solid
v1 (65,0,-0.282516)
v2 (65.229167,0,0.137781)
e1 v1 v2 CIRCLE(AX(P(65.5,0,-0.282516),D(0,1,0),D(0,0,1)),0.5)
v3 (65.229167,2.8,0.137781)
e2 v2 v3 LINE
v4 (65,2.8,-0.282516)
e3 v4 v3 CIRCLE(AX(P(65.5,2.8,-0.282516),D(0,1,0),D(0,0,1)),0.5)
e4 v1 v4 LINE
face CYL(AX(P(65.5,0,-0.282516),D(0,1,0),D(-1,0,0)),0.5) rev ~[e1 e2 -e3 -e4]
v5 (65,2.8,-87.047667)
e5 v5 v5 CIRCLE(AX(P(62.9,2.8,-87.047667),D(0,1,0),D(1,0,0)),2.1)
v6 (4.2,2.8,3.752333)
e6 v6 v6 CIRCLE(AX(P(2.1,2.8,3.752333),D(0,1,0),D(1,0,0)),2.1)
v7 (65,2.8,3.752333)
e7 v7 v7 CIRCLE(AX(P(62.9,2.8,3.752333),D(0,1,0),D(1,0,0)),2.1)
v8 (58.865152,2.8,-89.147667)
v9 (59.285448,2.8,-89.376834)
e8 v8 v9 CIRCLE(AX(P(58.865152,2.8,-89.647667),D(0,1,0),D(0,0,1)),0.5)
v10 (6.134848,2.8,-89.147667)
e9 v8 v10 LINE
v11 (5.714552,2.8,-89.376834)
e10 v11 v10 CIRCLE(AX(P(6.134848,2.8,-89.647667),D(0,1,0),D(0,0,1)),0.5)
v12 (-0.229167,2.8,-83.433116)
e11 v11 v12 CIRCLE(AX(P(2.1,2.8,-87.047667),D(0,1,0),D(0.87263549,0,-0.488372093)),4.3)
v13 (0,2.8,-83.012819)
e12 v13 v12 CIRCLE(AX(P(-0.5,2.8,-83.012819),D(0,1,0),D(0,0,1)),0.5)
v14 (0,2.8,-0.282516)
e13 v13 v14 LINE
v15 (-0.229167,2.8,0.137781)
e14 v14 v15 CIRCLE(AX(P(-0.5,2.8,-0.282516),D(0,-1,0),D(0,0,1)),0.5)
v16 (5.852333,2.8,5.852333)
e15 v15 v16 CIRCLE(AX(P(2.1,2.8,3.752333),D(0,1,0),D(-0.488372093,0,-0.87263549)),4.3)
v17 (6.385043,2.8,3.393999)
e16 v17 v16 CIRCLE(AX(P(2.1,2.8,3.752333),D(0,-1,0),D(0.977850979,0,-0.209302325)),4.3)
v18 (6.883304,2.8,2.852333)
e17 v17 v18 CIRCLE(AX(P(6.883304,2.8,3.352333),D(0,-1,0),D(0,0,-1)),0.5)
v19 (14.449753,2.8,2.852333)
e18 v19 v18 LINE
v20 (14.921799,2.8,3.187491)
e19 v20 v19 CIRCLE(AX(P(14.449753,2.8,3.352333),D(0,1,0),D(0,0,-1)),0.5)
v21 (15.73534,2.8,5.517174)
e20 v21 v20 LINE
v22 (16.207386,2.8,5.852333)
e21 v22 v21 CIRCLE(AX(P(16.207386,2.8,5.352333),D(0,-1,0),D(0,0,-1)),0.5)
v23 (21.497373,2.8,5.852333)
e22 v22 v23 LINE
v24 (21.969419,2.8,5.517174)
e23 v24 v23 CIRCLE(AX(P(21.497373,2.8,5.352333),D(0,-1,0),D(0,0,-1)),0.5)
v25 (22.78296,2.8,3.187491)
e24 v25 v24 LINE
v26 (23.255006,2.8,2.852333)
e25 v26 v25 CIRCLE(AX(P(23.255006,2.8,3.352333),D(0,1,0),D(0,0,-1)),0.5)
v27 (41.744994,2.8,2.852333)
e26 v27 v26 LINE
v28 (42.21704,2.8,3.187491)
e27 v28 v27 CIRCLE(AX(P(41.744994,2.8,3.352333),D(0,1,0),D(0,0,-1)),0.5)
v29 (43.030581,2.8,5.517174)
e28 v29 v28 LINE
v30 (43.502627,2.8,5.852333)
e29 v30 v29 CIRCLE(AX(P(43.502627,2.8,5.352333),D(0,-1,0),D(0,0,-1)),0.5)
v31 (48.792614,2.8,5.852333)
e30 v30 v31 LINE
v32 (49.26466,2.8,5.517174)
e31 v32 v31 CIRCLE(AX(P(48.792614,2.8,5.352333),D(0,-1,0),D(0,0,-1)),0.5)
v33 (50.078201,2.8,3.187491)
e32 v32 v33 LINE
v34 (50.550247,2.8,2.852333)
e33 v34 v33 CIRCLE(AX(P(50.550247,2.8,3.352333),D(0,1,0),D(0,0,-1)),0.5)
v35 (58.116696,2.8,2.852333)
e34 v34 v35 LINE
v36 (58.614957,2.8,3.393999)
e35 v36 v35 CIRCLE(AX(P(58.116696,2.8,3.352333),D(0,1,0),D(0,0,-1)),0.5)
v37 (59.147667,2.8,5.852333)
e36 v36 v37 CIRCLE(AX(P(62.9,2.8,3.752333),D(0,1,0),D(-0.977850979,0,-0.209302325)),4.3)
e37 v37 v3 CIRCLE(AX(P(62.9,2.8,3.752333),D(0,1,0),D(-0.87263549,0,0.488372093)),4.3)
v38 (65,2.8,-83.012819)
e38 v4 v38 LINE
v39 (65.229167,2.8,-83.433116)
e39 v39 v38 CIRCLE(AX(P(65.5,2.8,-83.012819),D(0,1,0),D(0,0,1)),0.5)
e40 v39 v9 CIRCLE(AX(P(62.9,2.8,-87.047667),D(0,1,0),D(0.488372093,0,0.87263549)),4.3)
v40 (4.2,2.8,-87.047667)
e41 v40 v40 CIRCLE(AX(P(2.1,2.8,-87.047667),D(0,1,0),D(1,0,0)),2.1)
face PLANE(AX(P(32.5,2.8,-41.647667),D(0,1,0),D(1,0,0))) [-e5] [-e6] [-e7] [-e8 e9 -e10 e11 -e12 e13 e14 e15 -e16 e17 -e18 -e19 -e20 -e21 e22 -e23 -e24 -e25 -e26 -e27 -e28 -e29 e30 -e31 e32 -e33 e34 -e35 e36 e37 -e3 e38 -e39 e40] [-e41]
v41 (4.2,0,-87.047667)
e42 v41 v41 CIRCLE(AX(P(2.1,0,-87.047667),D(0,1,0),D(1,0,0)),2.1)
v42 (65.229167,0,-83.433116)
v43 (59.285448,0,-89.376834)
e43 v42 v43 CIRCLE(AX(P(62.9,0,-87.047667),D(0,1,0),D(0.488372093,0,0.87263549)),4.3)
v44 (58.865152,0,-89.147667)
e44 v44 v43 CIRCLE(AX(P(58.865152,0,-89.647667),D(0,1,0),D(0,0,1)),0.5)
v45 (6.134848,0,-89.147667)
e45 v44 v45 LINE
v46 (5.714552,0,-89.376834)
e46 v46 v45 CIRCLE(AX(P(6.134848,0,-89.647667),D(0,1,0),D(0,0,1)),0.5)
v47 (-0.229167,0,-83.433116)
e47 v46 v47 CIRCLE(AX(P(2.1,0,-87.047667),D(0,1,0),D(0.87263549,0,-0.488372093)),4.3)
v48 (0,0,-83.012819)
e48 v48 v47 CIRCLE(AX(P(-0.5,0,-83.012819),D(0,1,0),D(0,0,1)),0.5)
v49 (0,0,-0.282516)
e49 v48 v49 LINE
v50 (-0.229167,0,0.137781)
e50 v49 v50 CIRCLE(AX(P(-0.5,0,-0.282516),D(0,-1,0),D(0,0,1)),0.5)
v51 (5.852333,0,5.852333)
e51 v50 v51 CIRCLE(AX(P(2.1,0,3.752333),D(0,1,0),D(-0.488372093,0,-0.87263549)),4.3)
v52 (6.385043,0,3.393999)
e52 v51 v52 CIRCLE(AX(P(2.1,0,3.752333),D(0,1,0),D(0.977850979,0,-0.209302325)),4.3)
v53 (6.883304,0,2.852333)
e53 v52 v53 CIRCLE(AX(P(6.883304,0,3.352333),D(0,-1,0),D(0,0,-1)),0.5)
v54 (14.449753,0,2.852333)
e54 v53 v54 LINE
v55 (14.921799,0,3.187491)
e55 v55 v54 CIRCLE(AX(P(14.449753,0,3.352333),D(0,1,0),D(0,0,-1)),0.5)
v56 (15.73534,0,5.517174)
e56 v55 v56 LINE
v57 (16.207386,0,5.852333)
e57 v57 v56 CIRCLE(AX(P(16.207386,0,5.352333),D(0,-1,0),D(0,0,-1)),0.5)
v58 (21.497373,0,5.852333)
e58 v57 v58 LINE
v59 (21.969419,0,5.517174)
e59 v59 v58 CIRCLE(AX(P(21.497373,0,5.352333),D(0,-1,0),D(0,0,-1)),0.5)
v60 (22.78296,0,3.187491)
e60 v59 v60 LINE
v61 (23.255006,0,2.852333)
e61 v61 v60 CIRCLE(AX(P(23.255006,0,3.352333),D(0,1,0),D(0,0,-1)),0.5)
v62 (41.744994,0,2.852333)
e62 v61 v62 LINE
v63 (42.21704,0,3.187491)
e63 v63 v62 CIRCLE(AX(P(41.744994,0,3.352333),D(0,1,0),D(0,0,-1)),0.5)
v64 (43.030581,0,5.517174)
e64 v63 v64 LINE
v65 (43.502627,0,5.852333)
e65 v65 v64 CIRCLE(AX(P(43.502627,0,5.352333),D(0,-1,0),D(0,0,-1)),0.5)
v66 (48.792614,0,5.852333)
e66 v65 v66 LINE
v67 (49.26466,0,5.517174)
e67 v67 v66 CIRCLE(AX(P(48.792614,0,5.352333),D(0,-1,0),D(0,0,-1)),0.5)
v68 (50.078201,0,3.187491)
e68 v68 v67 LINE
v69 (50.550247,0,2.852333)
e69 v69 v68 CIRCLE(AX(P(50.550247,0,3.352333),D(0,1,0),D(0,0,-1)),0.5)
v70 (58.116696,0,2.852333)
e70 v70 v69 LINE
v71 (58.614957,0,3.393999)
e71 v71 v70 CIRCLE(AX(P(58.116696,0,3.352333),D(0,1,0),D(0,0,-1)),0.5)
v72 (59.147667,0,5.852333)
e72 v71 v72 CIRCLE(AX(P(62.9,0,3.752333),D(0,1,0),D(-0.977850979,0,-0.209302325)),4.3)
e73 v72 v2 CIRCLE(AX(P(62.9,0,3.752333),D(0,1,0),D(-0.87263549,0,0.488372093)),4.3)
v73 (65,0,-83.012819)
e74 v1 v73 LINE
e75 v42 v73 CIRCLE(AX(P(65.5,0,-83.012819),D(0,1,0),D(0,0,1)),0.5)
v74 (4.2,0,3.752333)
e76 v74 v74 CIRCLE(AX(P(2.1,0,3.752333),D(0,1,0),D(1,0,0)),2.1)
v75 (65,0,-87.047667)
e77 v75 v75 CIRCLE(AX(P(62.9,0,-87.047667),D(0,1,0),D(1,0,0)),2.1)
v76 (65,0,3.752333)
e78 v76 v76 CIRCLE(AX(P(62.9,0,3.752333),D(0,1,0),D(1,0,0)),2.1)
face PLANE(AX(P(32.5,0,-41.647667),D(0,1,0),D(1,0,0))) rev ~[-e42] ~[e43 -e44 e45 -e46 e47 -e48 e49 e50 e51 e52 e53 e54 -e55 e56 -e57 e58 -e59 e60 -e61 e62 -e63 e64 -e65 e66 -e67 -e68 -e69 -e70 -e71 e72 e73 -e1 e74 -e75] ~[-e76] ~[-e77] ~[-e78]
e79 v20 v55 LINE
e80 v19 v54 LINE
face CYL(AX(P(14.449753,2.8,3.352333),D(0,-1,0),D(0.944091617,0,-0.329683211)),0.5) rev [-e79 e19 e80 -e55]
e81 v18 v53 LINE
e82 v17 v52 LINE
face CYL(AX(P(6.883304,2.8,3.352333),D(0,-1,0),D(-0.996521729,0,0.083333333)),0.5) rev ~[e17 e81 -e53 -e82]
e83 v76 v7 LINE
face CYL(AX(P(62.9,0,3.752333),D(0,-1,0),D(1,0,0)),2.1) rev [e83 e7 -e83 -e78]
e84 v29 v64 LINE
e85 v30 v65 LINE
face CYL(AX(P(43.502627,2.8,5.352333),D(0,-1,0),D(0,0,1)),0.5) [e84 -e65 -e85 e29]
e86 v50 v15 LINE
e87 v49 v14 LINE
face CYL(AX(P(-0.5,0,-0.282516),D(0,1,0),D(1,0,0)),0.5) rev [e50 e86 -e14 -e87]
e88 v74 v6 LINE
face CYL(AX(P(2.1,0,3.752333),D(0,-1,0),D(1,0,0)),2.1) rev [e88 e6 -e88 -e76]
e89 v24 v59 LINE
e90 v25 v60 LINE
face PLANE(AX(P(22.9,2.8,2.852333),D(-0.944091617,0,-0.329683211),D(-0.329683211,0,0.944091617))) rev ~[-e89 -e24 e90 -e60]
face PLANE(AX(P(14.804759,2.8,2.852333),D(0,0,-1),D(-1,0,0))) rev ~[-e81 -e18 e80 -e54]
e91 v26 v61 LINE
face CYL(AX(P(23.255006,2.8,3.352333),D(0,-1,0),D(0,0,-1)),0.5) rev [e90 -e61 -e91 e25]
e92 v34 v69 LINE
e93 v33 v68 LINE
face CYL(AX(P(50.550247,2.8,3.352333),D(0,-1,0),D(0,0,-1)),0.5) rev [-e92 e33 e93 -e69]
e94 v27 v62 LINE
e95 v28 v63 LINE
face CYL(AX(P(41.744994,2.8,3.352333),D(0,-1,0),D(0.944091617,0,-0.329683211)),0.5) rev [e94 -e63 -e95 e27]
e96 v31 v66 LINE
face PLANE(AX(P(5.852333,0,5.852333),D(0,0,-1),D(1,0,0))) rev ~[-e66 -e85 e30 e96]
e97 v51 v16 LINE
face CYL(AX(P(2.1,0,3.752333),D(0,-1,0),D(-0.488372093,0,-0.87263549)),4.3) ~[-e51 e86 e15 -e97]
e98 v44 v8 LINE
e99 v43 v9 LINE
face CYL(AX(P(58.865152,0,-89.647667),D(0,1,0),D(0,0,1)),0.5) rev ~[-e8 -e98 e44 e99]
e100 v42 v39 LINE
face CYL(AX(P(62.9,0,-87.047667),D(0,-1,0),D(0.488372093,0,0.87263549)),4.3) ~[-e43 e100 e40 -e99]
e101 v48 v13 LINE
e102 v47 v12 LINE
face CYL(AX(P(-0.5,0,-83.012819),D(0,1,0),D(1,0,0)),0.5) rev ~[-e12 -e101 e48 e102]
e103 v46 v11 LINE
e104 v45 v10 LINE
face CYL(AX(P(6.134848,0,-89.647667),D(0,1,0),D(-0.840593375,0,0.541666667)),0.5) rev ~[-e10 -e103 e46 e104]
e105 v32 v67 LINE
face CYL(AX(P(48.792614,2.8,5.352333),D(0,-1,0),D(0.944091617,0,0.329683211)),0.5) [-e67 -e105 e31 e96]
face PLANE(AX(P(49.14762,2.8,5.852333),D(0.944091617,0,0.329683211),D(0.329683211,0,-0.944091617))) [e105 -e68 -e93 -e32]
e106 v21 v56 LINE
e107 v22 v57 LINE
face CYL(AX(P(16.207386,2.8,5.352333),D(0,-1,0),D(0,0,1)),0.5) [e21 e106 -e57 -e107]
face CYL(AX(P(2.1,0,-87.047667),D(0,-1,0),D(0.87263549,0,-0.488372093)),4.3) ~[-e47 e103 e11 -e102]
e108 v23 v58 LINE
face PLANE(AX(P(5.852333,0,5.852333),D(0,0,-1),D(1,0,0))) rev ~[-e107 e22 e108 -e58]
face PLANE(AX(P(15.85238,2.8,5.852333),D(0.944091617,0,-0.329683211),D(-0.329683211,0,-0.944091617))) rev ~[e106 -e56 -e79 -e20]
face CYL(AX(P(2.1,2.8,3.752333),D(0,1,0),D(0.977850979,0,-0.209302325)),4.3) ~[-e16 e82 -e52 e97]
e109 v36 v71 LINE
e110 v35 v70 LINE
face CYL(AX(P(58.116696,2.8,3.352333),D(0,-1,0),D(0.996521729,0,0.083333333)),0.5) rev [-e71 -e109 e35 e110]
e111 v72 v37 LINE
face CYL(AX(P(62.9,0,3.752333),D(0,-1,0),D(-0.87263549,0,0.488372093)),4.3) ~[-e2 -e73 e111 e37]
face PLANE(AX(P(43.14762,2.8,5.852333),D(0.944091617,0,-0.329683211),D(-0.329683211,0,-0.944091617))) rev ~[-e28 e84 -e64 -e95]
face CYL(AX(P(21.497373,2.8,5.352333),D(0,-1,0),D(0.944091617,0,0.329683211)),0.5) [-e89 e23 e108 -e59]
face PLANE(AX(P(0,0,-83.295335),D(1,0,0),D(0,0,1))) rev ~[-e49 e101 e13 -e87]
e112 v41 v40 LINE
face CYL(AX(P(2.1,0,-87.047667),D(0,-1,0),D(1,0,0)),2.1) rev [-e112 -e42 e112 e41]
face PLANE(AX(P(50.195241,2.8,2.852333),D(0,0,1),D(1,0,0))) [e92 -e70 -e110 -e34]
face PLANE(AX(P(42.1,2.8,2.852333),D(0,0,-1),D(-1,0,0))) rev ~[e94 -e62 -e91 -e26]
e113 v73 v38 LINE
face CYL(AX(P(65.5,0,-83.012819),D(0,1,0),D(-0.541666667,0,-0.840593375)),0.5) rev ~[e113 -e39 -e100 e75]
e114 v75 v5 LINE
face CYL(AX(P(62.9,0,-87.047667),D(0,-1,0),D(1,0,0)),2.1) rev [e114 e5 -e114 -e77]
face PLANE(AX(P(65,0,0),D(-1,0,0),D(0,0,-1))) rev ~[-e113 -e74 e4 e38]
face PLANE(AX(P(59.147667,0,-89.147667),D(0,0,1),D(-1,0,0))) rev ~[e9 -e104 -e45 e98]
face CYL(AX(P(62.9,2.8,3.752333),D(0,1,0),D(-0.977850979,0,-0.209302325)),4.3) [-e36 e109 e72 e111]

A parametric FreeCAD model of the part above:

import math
import FreeCAD as App
import Part
import Sketcher
Q = App.Units.Quantity


def edges_at(feature, points):
    """Names of the edges that pass closest to the given points."""
    edges = feature.Shape.Edges
    near = lambda p: min(range(len(edges)), key=lambda i: edges[i].distToShape(Part.Vertex(*p))[0])
    return sorted({f"Edge{near(p) + 1}" for p in points})


def add_polygon(sketch, points):
    """Adds a closed chain of lines whose ends are joined by coincident constraints."""
    first, n = sketch.GeometryCount, len(points)
    for a, b in zip(points, points[1:] + points[:1]):
        sketch.addGeometry(Part.LineSegment(App.Vector(*a, 0), App.Vector(*b, 0)), False)
    for i in range(n):
        sketch.addConstraint(Sketcher.Constraint("Coincident", first + i, 2, first + (i + 1) % n, 1))

doc = App.newDocument("Part")
body = doc.addObject("PartDesign::Body", "Body")

# Sketch on XZ plane
sketch1 = doc.addObject("Sketcher::SketchObject", "Sketch")
body.addObject(sketch1)
sketch1.AttachmentSupport = (doc.XZ_Plane, [""])
sketch1.MapMode = "FlatFace"
sketch1.addGeometry([
    Part.LineSegment(App.Vector(0, -83.295335, 0), App.Vector(0, 0, 0)),  # 0
    Part.ArcOfCircle(Part.Circle(App.Vector(2.1, 3.752333, 0), App.Vector(0, 0, 1), 4.3), math.radians(29.23364), math.radians(240.76636)),  # 1
    Part.LineSegment(App.Vector(5.852333, 5.852333, 0), App.Vector(59.147667, 5.852333, 0)),  # 2
    Part.ArcOfCircle(Part.Circle(App.Vector(62.9, 3.752333, 0), App.Vector(0, 0, 1), 4.3), math.radians(-60.76636), math.radians(150.76636)),  # 3
    Part.LineSegment(App.Vector(65, 0, 0), App.Vector(65, -83.295335, 0)),  # 4
    Part.ArcOfCircle(Part.Circle(App.Vector(62.9, -87.047667, 0), App.Vector(0, 0, 1), 4.3), math.radians(-150.76636), math.radians(60.76636)),  # 5
    Part.LineSegment(App.Vector(59.147667, -89.147667, 0), App.Vector(5.852333, -89.147667, 0)),  # 6
    Part.ArcOfCircle(Part.Circle(App.Vector(2.1, -87.047667, 0), App.Vector(0, 0, 1), 4.3), math.radians(119.23364), math.radians(330.76636)),  # 7
    Part.Circle(App.Vector(2.1, 3.752333, 0), App.Vector(0, 0, 1), 2.1),  # 8
    Part.Circle(App.Vector(62.9, 3.752333, 0), App.Vector(0, 0, 1), 2.1),  # 9
    Part.Circle(App.Vector(2.1, -87.047667, 0), App.Vector(0, 0, 1), 2.1),  # 10
    Part.Circle(App.Vector(62.9, -87.047667, 0), App.Vector(0, 0, 1), 2.1),  # 11
], False)
sketch1.addConstraint([
    Sketcher.Constraint("Coincident", 0, 2, 1, 2),
    Sketcher.Constraint("Coincident", 1, 1, 2, 1),
    Sketcher.Constraint("Coincident", 2, 2, 3, 2),
    Sketcher.Constraint("Coincident", 3, 1, 4, 1),
    Sketcher.Constraint("Coincident", 4, 2, 5, 2),
    Sketcher.Constraint("Coincident", 5, 1, 6, 1),
    Sketcher.Constraint("Coincident", 6, 2, 7, 2),
    Sketcher.Constraint("Coincident", 7, 1, 0, 1),
    Sketcher.Constraint("Vertical", 0),
    Sketcher.Constraint("Horizontal", 2),
    Sketcher.Constraint("Vertical", 4),
    Sketcher.Constraint("Horizontal", 6),
    Sketcher.Constraint("Coincident", 0, 2, -1, 1),
    Sketcher.Constraint("Coincident", 8, 3, 1, 3),
    Sketcher.Constraint("Coincident", 9, 3, 3, 3),
    Sketcher.Constraint("Coincident", 10, 3, 7, 3),
    Sketcher.Constraint("Coincident", 11, 3, 5, 3),
    Sketcher.Constraint("Equal", 1, 3),
    Sketcher.Constraint("Equal", 3, 5),
    Sketcher.Constraint("Equal", 5, 7),
    Sketcher.Constraint("Equal", 8, 9),
    Sketcher.Constraint("Equal", 9, 10),
    Sketcher.Constraint("Equal", 10, 11),
    Sketcher.Constraint("PointOnObject", 3, 1, -1),
    Sketcher.Constraint("Horizontal", 1, 3, 3, 3),
    Sketcher.Constraint("Horizontal", 5, 3, 7, 3),
    Sketcher.Constraint("Horizontal", 4, 2, 7, 1),
    Sketcher.Constraint("Vertical", 3, 3, 5, 3),
    Sketcher.Constraint("Vertical", 2, 2, 5, 1),
    Sketcher.Constraint("Diameter", 8, Q("4.2 mm")),
    Sketcher.Constraint("Radius", 1, Q("4.3 mm")),
    Sketcher.Constraint("DistanceX", -1, 1, 3, 1, Q("65 mm")),
    Sketcher.Constraint("DistanceX", -1, 1, 1, 3, Q("2.1 mm")),
    Sketcher.Constraint("DistanceY", 5, 3, 3, 3, Q("90.8 mm")),
    Sketcher.Constraint("DistanceY", 1, 3, 1, 1, Q("2.1 mm")),
])
pad1 = doc.addObject("PartDesign::Pad", "Pad")
body.addObject(pad1)
pad1.Profile = sketch1
pad1.Length = 2.8
pad1.Reversed = True

# Sketch on XZ plane
sketch2 = doc.addObject("Sketcher::SketchObject", "Sketch001")
body.addObject(sketch2)
sketch2.AttachmentSupport = (doc.XZ_Plane, [""])
sketch2.MapMode = "FlatFace"
sketch2.AttachmentOffset = App.Placement(App.Vector(0, 0, -2.8), App.Rotation())
add_polygon(sketch2, [(22.9, 2.852333), (21.85238, 5.852333), (43.14762, 5.852333), (42.1, 2.852333)])  # lines 0-3
sketch2.addConstraint([
    Sketcher.Constraint("Horizontal", 1),
    Sketcher.Constraint("Horizontal", 3),
    Sketcher.Constraint("Equal", 0, 2),
    Sketcher.Constraint("DistanceX", 3, 2, 3, 1, Q("19.2 mm")),
    Sketcher.Constraint("DistanceY", 2, 2, 1, 2, Q("3 mm")),
    Sketcher.Constraint("DistanceX", -1, 1, 2, 2, Q("42.1 mm")),
    Sketcher.Constraint("DistanceX", 1, 1, 1, 2, Q("21.295241 mm")),
    Sketcher.Constraint("DistanceY", -1, 1, 0, 2, Q("5.852333 mm")),
])
pocket1 = doc.addObject("PartDesign::Pocket", "Pocket")
body.addObject(pocket1)
pocket1.Profile = sketch2
pocket1.Type = "UpToFirst"
pocket1.Reversed = True

# Sketch on XZ plane
sketch3 = doc.addObject("Sketcher::SketchObject", "Sketch002")
body.addObject(sketch3)
sketch3.AttachmentSupport = (doc.XZ_Plane, [""])
sketch3.MapMode = "FlatFace"
sketch3.AttachmentOffset = App.Placement(App.Vector(0, 0, -2.8), App.Rotation())
sketch3.addGeometry([
    Part.LineSegment(App.Vector(15.85238, 5.852333, 0), App.Vector(14.804759, 2.852333, 0)),
    Part.LineSegment(App.Vector(14.804759, 2.852333, 0), App.Vector(6.304759, 2.852333, 0)),
    Part.ArcOfCircle(Part.Circle(App.Vector(2.1, 3.752333, 0), App.Vector(0, 0, 1), 4.3), math.radians(-12.08147), math.radians(29.23364)),
    Part.LineSegment(App.Vector(5.852333, 5.852333, 0), App.Vector(15.85238, 5.852333, 0)),
], False)
sketch3.addConstraint([
    Sketcher.Constraint("Coincident", 0, 2, 1, 1),
    Sketcher.Constraint("Coincident", 1, 2, 2, 1),
    Sketcher.Constraint("Coincident", 2, 2, 3, 1),
    Sketcher.Constraint("Coincident", 3, 2, 0, 1),
    Sketcher.Constraint("Horizontal", 1),
    Sketcher.Constraint("Horizontal", 3),
    Sketcher.Constraint("Radius", 2, Q("4.3 mm")),
    Sketcher.Constraint("DistanceX", 1, 2, 1, 1, Q("8.5 mm")),
    Sketcher.Constraint("DistanceY", 1, 2, 2, 2, Q("3 mm")),
    Sketcher.Constraint("DistanceX", -1, 1, 2, 3, Q("2.1 mm")),
    Sketcher.Constraint("DistanceY", 0, 2, 2, 3, Q("0.9 mm")),
    Sketcher.Constraint("DistanceX", 3, 1, 3, 2, Q("10.000047 mm")),
    Sketcher.Constraint("DistanceY", -1, 1, 2, 3, Q("3.752333 mm")),
])
pocket2 = doc.addObject("PartDesign::Pocket", "Pocket001")
body.addObject(pocket2)
pocket2.Profile = sketch3
pocket2.Type = "UpToFirst"
pocket2.Reversed = True

# Sketch on XZ plane
sketch4 = doc.addObject("Sketcher::SketchObject", "Sketch003")
body.addObject(sketch4)
sketch4.AttachmentSupport = (doc.XZ_Plane, [""])
sketch4.MapMode = "FlatFace"
sketch4.AttachmentOffset = App.Placement(App.Vector(0, 0, -2.8), App.Rotation())
sketch4.addGeometry([
    Part.LineSegment(App.Vector(49.14762, 5.852333, 0), App.Vector(59.147667, 5.852333, 0)),
    Part.ArcOfCircle(Part.Circle(App.Vector(62.9, 3.752333, 0), App.Vector(0, 0, 1), 4.3), math.radians(150.76636), math.radians(192.08147)),
    Part.LineSegment(App.Vector(58.695241, 2.852333, 0), App.Vector(50.195241, 2.852333, 0)),
    Part.LineSegment(App.Vector(50.195241, 2.852333, 0), App.Vector(49.14762, 5.852333, 0)),
], False)
sketch4.addConstraint([
    Sketcher.Constraint("Coincident", 0, 2, 1, 1),
    Sketcher.Constraint("Coincident", 1, 2, 2, 1),
    Sketcher.Constraint("Coincident", 2, 2, 3, 1),
    Sketcher.Constraint("Coincident", 3, 2, 0, 1),
    Sketcher.Constraint("Horizontal", 0),
    Sketcher.Constraint("Horizontal", 2),
    Sketcher.Constraint("Radius", 1, Q("4.3 mm")),
    Sketcher.Constraint("DistanceX", 2, 2, 2, 1, Q("8.5 mm")),
    Sketcher.Constraint("DistanceY", 1, 2, 0, 2, Q("3 mm")),
    Sketcher.Constraint("DistanceX", -1, 1, 1, 3, Q("62.9 mm")),
    Sketcher.Constraint("DistanceY", 1, 3, 0, 2, Q("2.1 mm")),
    Sketcher.Constraint("DistanceX", 0, 1, 0, 2, Q("10.000047 mm")),
    Sketcher.Constraint("DistanceY", -1, 1, 1, 3, Q("3.752333 mm")),
])
pocket3 = doc.addObject("PartDesign::Pocket", "Pocket002")
body.addObject(pocket3)
pocket3.Profile = sketch4
pocket3.Type = "UpToFirst"
pocket3.Reversed = True
doc.recompute()

fillet = doc.addObject("PartDesign::Fillet", "Fillet")
body.addObject(fillet)
fillet.Base = (pocket3, edges_at(pocket3, [
    (5.852, 1.4, -89.148),
    (59.148, 1.4, -89.148),
    (65, 1.4, -83.295),
    (65, 1.4, 0),
    (0, 1.4, 0),
    (0, 1.4, -83.295),
    (58.695, 1.4, 2.852),
    (49.148, 1.4, 5.852),
    (50.195, 1.4, 2.852),
    (15.852, 1.4, 5.852),
    (6.305, 1.4, 2.852),
    (14.805, 1.4, 2.852),
    (22.9, 1.4, 2.852),
    (42.1, 1.4, 2.852),
    (43.148, 1.4, 5.852),
    (21.852, 1.4, 5.852),
]))
fillet.Radius = 0.5

doc.recompute()
